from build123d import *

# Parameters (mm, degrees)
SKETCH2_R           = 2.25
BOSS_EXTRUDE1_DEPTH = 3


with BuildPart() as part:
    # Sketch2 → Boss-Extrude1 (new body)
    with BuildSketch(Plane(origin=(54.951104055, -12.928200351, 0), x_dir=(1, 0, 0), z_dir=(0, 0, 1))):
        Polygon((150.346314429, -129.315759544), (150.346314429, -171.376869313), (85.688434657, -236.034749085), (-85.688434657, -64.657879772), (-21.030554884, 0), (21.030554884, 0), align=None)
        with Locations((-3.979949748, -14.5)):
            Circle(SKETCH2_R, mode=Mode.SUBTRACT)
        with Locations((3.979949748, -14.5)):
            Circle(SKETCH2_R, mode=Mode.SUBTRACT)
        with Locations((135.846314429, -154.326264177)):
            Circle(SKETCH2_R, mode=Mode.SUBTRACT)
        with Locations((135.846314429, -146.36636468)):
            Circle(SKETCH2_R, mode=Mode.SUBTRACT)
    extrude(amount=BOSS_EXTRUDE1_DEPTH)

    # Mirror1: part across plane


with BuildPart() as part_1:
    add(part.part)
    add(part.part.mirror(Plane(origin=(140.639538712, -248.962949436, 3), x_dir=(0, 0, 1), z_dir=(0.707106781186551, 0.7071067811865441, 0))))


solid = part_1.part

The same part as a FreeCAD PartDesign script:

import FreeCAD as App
import Part
import Sketcher
Q = App.Units.Quantity


def add_polygon(sketch, points):
    """Adds a closed chain of lines whose ends are joined by coincident constraints."""
    first, n = sketch.GeometryCount, len(points)
    for a, b in zip(points, points[1:] + points[:1]):
        sketch.addGeometry(Part.LineSegment(App.Vector(*a, 0), App.Vector(*b, 0)), False)
    for i in range(n):
        sketch.addConstraint(Sketcher.Constraint("Coincident", first + i, 2, first + (i + 1) % n, 1))

doc = App.newDocument("Part")
body = doc.addObject("PartDesign::Body", "Body")

# Sketch on XY plane
sketch1 = body.newObject("Sketcher::SketchObject", "Sketch")
sketch1.AttachmentSupport = (doc.getObject("XY_Plane"), [""])
sketch1.MapMode = "FlatFace"
add_polygon(sketch1, [(205.297418, -184.30507), (205.297418, -142.24396), (75.981659, -12.9282), (33.920549, -12.9282), (-30.737331, -77.58608), (140.639539, -248.962949)])  # lines 0-5
sketch1.addGeometry(Part.Circle(App.Vector(190.797418, -167.254465, 0), App.Vector(0, 0, 1), 2.25), False)  # 6
sketch1.addGeometry(Part.Circle(App.Vector(190.797418, -159.294565, 0), App.Vector(0, 0, 1), 2.25), False)  # 7
sketch1.addGeometry(Part.Circle(App.Vector(58.931054, -27.4282, 0), App.Vector(0, 0, 1), 2.25), False)  # 8
sketch1.addGeometry(Part.Circle(App.Vector(50.971154, -27.4282, 0), App.Vector(0, 0, 1), 2.25), False)  # 9
sketch1.addConstraint([
    Sketcher.Constraint("Vertical", 0),
    Sketcher.Constraint("Horizontal", 2),
    Sketcher.Constraint("Equal", 6, 7),
    Sketcher.Constraint("Equal", 7, 8),
    Sketcher.Constraint("Equal", 8, 9),
    Sketcher.Constraint("Perpendicular", 1, 3),
    Sketcher.Constraint("Perpendicular", 3, 4),
    Sketcher.Constraint("Perpendicular", 4, 5),
    Sketcher.Constraint("Horizontal", 8, 3, 9, 3),
    Sketcher.Constraint("Vertical", 6, 3, 7, 3),
    Sketcher.Constraint("Equal", 2, 0),
    Sketcher.Constraint("Equal", 3, 5),
    Sketcher.Constraint("Diameter", 6, Q("4.5 mm")),
    Sketcher.Constraint("DistanceX", 7, 3, 0, 2, Q("14.5 mm")),
    Sketcher.Constraint("DistanceY", 8, 3, 1, 2, Q("14.5 mm")),
    Sketcher.Constraint("Distance", 1, Q("182.880101 mm")),
    Sketcher.Constraint("DistanceX", 2, 2, 2, 1, Q("42.06111 mm")),
    Sketcher.Constraint("DistanceY", 8, 3, -1, 1, Q("27.4282 mm")),
    Sketcher.Constraint("DistanceY", 6, 3, 7, 3, Q("7.959899 mm")),
    Sketcher.Constraint("DistanceX", 9, 3, 8, 3, Q("7.959899 mm")),
    Sketcher.Constraint("Distance", 3, Q("91.44005 mm")),
    Sketcher.Constraint("DistanceX", -1, 1, 6, 3, Q("190.797418 mm")),
    Sketcher.Constraint("DistanceY", 6, 3, -1, 1, Q("167.254465 mm")),
    Sketcher.Constraint("DistanceX", -1, 1, 8, 3, Q("58.931054 mm")),
])
pad1 = body.newObject("PartDesign::Pad", "Pad")
pad1.Profile = sketch1
pad1.Length = 3
body2 = doc.addObject("PartDesign::Body", "Body001")
doc.recompute()

body2.BaseFeature = body
doc.recompute()

mirroring = doc.addObject("Part::Mirroring", "Mirroring")
mirroring.Source = body
mirroring.Base = App.Vector(140.639539, -248.962949, 3)
mirroring.Normal = App.Vector(0.707106781, 0.707106781, 0)
body3 = doc.addObject("PartDesign::Body", "Body002")
body3.BaseFeature = mirroring
boolean = body2.newObject("PartDesign::Boolean", "Boolean")
boolean.Type = "Fuse"
boolean.addObjects([body3])
doc.recompute()
mirroring.Visibility = False

doc.recompute()
